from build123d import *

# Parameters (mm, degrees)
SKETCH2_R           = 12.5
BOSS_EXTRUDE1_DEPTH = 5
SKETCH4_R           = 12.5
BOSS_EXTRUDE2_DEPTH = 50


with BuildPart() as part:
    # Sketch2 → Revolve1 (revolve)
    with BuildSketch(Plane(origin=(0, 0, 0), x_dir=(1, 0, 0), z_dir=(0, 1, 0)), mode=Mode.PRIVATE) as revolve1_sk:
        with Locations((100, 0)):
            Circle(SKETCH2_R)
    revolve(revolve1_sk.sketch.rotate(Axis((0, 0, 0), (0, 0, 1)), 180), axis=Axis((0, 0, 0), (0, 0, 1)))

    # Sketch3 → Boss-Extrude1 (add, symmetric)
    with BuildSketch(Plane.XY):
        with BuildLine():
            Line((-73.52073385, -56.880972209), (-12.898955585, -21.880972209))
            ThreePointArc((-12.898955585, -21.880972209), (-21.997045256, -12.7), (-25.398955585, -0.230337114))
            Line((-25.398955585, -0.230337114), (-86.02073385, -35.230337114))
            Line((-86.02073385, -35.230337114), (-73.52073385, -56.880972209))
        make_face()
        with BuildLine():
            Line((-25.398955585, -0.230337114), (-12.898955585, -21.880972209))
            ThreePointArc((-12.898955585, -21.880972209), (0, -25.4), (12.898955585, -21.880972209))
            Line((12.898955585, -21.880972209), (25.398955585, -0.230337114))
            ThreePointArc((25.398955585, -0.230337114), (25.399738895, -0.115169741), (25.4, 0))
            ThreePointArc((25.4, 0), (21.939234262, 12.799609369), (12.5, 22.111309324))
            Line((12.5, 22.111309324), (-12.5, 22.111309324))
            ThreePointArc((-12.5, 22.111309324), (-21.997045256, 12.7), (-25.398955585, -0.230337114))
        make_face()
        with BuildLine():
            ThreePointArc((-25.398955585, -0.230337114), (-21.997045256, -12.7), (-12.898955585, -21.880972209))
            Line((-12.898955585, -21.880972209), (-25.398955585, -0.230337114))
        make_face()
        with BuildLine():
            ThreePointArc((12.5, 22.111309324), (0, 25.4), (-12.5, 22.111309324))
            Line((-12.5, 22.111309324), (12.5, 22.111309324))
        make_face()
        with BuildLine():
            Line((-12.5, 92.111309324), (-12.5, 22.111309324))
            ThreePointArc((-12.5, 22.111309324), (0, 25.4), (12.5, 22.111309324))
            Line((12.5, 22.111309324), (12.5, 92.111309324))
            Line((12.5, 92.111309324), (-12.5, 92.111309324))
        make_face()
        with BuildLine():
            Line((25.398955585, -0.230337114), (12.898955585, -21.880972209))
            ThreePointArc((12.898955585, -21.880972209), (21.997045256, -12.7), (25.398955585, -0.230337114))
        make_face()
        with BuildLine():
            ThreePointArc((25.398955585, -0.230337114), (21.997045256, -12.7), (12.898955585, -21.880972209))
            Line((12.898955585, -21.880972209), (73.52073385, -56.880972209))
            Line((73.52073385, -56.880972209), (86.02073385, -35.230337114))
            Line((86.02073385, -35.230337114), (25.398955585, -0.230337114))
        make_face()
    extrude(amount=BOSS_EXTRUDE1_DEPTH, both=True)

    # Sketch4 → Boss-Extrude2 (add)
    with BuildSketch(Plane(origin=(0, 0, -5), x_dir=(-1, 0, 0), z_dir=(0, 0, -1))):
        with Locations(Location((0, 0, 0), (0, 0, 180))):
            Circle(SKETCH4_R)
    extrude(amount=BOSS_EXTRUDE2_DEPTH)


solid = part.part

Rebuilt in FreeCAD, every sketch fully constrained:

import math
import FreeCAD as App
import Part
import Sketcher
from FreeCAD import Vector
Q = App.Units.Quantity

doc = App.newDocument("Part")
params = doc.addObject("Spreadsheet::Sheet", "Params")
for row, (alias, value) in enumerate([
    ("sketch1_diameter", "25 mm"),
    ("revolution_angle", "360 deg"),
    ("sketch2_radius", "25.4 mm"),
    ("sketch2_width", "25 mm"),
    ("sketch2_height", "70 mm"),
    ("sketch2_length", "70 mm"),
    ("sketch2_length2", "25 mm"),
    ("pad1_length", "10 mm"),
    ("sketch3_diameter", "25 mm"),
    ("pad2_length", "50 mm"),
], start=1):
    params.set(f"A{row}", alias)
    params.set(f"B{row}", "=" + value)
    params.setAlias(f"B{row}", alias)

body = doc.addObject("PartDesign::Body", "Body")

# Sketch on XZ plane
sketch1 = body.newObject("Sketcher::SketchObject", "Sketch")
sketch1.AttachmentSupport = (doc.getObject("XZ_Plane"), [""])
sketch1.MapMode = "FlatFace"
sketch1.addGeometry(Part.Circle(Vector(100, 0, 0), Vector(0, 0, 1), 12), False)
sketch1.addConstraint(Sketcher.Constraint("PointOnObject", 0, 3, -1))
sketch1.addConstraint(Sketcher.Constraint("Diameter", 0, Q("25 mm")))
sketch1.addConstraint(Sketcher.Constraint("DistanceX", -1, 1, 0, 3, Q("100 mm")))
sketch1.setExpression("Constraints[1]", "Params.sketch1_diameter")
revolution = body.newObject("PartDesign::Revolution", "Revolution")
revolution.Profile = sketch1
revolution.ReferenceAxis = (sketch1, ["V_Axis"])
revolution.setExpression("Angle", "Params.revolution_angle")

# Sketch on XY plane
sketch2 = body.newObject("Sketcher::SketchObject", "Sketch001")
sketch2.AttachmentSupport = (doc.getObject("XY_Plane"), [""])
sketch2.MapMode = "FlatFace"
sketch2.addGeometry(Part.LineSegment(Vector(-73.52, -56.88, 0), Vector(-12.9, -21.88, 0)), False)
sketch2.addGeometry(Part.ArcOfCircle(Part.Circle(Vector(0, 0, 0), Vector(0, 0, 1), 25.4), math.radians(-121), math.radians(-59)), False)
sketch2.addGeometry(Part.LineSegment(Vector(12.9, -21.88, 0), Vector(73.52, -56.88, 0)), False)
sketch2.addGeometry(Part.LineSegment(Vector(73.52, -56.88, 0), Vector(86.02, -35.23, 0)), False)
sketch2.addGeometry(Part.LineSegment(Vector(86.02, -35.23, 0), Vector(25.4, -0.23, 0)), False)
sketch2.addGeometry(Part.ArcOfCircle(Part.Circle(Vector(0, 0, 0), Vector(0, 0, 1), 25.4), math.radians(-0.52), math.radians(0)), False)
sketch2.addGeometry(Part.ArcOfCircle(Part.Circle(Vector(0, 0, 0), Vector(0, 0, 1), 25.4), math.radians(0), math.radians(61)), False)
sketch2.addGeometry(Part.LineSegment(Vector(12.5, 22.11, 0), Vector(12.5, 92.11, 0)), False)
sketch2.addGeometry(Part.LineSegment(Vector(12.5, 92.11, 0), Vector(-12.5, 92.11, 0)), False)
sketch2.addGeometry(Part.LineSegment(Vector(-12.5, 92.11, 0), Vector(-12.5, 22.11, 0)), False)
sketch2.addGeometry(Part.ArcOfCircle(Part.Circle(Vector(0, 0, 0), Vector(0, 0, 1), 25.4), math.radians(119), math.radians(181)), False)
sketch2.addGeometry(Part.LineSegment(Vector(-25.4, -0.23, 0), Vector(-86.02, -35.23, 0)), False)
sketch2.addGeometry(Part.LineSegment(Vector(-86.02, -35.23, 0), Vector(-73.52, -56.88, 0)), False)
sketch2.addConstraint(Sketcher.Constraint("Coincident", 0, 2, 1, 1))
sketch2.addConstraint(Sketcher.Constraint("Coincident", 1, 2, 2, 1))
sketch2.addConstraint(Sketcher.Constraint("Coincident", 2, 2, 3, 1))
sketch2.addConstraint(Sketcher.Constraint("Coincident", 3, 2, 4, 1))
sketch2.addConstraint(Sketcher.Constraint("Coincident", 4, 2, 5, 1))
sketch2.addConstraint(Sketcher.Constraint("Tangent", 5, 2, 6, 1))
sketch2.addConstraint(Sketcher.Constraint("Coincident", 6, 2, 7, 1))
sketch2.addConstraint(Sketcher.Constraint("Coincident", 7, 2, 8, 1))
sketch2.addConstraint(Sketcher.Constraint("Coincident", 8, 2, 9, 1))
sketch2.addConstraint(Sketcher.Constraint("Coincident", 9, 2, 10, 1))
sketch2.addConstraint(Sketcher.Constraint("Coincident", 10, 2, 11, 1))
sketch2.addConstraint(Sketcher.Constraint("Coincident", 11, 2, 12, 1))
sketch2.addConstraint(Sketcher.Constraint("Coincident", 12, 2, 0, 1))
sketch2.addConstraint(Sketcher.Constraint("Vertical", 7))
sketch2.addConstraint(Sketcher.Constraint("Horizontal", 8))
sketch2.addConstraint(Sketcher.Constraint("Vertical", 9))
sketch2.addConstraint(Sketcher.Constraint("Coincident", 1, 3, -1, 1))
sketch2.addConstraint(Sketcher.Constraint("Coincident", 6, 3, -1, 1))
sketch2.addConstraint(Sketcher.Constraint("Coincident", 10, 3, -1, 1))
sketch2.addConstraint(Sketcher.Constraint("Equal", 1, 6))
sketch2.addConstraint(Sketcher.Constraint("Equal", 6, 10))
sketch2.addConstraint(Sketcher.Constraint("Symmetric", 3, 2, 11, 2, -2))
sketch2.addConstraint(Sketcher.Constraint("Symmetric", 2, 2, 12, 2, -2))
sketch2.addConstraint(Sketcher.Constraint("PointOnObject", 5, 2, -1))
sketch2.addConstraint(Sketcher.Constraint("Perpendicular", 2, 3))
sketch2.addConstraint(Sketcher.Constraint("Perpendicular", 3, 4))
sketch2.addConstraint(Sketcher.Constraint("Parallel", 0, 11))
sketch2.addConstraint(Sketcher.Constraint("Perpendicular", 11, 12))
sketch2.addConstraint(Sketcher.Constraint("Horizontal", 6, 2, 9, 2))
sketch2.addConstraint(Sketcher.Constraint("Equal", 2, 4))
sketch2.addConstraint(Sketcher.Constraint("Radius", 1, Q("25.4 mm")))
sketch2.addConstraint(Sketcher.Constraint("DistanceX", 8, 2, 8, 1, Q("25 mm")))
sketch2.addConstraint(Sketcher.Constraint("DistanceY", 7, 1, 7, 2, Q("70 mm")))
sketch2.addConstraint(Sketcher.Constraint("Angle", 0, Q("30 deg")))
sketch2.addConstraint(Sketcher.Constraint("Distance", 0, Q("70 mm")))
sketch2.addConstraint(Sketcher.Constraint("Distance", 3, Q("25 mm")))
sketch2.addConstraint(Sketcher.Constraint("Radius", 5, Q("25.399989 mm")))
sketch2.setExpression("Constraints[30]", "Params.sketch2_radius")
sketch2.setExpression("Constraints[31]", "Params.sketch2_width")
sketch2.setExpression("Constraints[32]", "Params.sketch2_height")
sketch2.setExpression("Constraints[34]", "Params.sketch2_length")
sketch2.setExpression("Constraints[35]", "Params.sketch2_length2")
pad1 = body.newObject("PartDesign::Pad", "Pad")
pad1.Profile = sketch2
pad1.setExpression("Length", "Params.pad1_length")
pad1.Midplane = True

# Sketch on XY plane
sketch3 = body.newObject("Sketcher::SketchObject", "Sketch002")
sketch3.AttachmentSupport = (doc.getObject("XY_Plane"), [""])
sketch3.MapMode = "FlatFace"
sketch3.AttachmentOffset = App.Placement(Vector(0, 0, -5), App.Rotation())
sketch3.addGeometry(Part.Circle(Vector(0, 0, 0), Vector(0, 0, 1), 12), False)
sketch3.addConstraint(Sketcher.Constraint("Coincident", 0, 3, -1, 1))
sketch3.addConstraint(Sketcher.Constraint("Diameter", 0, Q("25 mm")))
sketch3.setExpression("Constraints[1]", "Params.sketch3_diameter")
pad2 = body.newObject("PartDesign::Pad", "Pad001")
pad2.Profile = sketch3
pad2.setExpression("Length", "Params.pad2_length")
pad2.Reversed = True

doc.recompute()
